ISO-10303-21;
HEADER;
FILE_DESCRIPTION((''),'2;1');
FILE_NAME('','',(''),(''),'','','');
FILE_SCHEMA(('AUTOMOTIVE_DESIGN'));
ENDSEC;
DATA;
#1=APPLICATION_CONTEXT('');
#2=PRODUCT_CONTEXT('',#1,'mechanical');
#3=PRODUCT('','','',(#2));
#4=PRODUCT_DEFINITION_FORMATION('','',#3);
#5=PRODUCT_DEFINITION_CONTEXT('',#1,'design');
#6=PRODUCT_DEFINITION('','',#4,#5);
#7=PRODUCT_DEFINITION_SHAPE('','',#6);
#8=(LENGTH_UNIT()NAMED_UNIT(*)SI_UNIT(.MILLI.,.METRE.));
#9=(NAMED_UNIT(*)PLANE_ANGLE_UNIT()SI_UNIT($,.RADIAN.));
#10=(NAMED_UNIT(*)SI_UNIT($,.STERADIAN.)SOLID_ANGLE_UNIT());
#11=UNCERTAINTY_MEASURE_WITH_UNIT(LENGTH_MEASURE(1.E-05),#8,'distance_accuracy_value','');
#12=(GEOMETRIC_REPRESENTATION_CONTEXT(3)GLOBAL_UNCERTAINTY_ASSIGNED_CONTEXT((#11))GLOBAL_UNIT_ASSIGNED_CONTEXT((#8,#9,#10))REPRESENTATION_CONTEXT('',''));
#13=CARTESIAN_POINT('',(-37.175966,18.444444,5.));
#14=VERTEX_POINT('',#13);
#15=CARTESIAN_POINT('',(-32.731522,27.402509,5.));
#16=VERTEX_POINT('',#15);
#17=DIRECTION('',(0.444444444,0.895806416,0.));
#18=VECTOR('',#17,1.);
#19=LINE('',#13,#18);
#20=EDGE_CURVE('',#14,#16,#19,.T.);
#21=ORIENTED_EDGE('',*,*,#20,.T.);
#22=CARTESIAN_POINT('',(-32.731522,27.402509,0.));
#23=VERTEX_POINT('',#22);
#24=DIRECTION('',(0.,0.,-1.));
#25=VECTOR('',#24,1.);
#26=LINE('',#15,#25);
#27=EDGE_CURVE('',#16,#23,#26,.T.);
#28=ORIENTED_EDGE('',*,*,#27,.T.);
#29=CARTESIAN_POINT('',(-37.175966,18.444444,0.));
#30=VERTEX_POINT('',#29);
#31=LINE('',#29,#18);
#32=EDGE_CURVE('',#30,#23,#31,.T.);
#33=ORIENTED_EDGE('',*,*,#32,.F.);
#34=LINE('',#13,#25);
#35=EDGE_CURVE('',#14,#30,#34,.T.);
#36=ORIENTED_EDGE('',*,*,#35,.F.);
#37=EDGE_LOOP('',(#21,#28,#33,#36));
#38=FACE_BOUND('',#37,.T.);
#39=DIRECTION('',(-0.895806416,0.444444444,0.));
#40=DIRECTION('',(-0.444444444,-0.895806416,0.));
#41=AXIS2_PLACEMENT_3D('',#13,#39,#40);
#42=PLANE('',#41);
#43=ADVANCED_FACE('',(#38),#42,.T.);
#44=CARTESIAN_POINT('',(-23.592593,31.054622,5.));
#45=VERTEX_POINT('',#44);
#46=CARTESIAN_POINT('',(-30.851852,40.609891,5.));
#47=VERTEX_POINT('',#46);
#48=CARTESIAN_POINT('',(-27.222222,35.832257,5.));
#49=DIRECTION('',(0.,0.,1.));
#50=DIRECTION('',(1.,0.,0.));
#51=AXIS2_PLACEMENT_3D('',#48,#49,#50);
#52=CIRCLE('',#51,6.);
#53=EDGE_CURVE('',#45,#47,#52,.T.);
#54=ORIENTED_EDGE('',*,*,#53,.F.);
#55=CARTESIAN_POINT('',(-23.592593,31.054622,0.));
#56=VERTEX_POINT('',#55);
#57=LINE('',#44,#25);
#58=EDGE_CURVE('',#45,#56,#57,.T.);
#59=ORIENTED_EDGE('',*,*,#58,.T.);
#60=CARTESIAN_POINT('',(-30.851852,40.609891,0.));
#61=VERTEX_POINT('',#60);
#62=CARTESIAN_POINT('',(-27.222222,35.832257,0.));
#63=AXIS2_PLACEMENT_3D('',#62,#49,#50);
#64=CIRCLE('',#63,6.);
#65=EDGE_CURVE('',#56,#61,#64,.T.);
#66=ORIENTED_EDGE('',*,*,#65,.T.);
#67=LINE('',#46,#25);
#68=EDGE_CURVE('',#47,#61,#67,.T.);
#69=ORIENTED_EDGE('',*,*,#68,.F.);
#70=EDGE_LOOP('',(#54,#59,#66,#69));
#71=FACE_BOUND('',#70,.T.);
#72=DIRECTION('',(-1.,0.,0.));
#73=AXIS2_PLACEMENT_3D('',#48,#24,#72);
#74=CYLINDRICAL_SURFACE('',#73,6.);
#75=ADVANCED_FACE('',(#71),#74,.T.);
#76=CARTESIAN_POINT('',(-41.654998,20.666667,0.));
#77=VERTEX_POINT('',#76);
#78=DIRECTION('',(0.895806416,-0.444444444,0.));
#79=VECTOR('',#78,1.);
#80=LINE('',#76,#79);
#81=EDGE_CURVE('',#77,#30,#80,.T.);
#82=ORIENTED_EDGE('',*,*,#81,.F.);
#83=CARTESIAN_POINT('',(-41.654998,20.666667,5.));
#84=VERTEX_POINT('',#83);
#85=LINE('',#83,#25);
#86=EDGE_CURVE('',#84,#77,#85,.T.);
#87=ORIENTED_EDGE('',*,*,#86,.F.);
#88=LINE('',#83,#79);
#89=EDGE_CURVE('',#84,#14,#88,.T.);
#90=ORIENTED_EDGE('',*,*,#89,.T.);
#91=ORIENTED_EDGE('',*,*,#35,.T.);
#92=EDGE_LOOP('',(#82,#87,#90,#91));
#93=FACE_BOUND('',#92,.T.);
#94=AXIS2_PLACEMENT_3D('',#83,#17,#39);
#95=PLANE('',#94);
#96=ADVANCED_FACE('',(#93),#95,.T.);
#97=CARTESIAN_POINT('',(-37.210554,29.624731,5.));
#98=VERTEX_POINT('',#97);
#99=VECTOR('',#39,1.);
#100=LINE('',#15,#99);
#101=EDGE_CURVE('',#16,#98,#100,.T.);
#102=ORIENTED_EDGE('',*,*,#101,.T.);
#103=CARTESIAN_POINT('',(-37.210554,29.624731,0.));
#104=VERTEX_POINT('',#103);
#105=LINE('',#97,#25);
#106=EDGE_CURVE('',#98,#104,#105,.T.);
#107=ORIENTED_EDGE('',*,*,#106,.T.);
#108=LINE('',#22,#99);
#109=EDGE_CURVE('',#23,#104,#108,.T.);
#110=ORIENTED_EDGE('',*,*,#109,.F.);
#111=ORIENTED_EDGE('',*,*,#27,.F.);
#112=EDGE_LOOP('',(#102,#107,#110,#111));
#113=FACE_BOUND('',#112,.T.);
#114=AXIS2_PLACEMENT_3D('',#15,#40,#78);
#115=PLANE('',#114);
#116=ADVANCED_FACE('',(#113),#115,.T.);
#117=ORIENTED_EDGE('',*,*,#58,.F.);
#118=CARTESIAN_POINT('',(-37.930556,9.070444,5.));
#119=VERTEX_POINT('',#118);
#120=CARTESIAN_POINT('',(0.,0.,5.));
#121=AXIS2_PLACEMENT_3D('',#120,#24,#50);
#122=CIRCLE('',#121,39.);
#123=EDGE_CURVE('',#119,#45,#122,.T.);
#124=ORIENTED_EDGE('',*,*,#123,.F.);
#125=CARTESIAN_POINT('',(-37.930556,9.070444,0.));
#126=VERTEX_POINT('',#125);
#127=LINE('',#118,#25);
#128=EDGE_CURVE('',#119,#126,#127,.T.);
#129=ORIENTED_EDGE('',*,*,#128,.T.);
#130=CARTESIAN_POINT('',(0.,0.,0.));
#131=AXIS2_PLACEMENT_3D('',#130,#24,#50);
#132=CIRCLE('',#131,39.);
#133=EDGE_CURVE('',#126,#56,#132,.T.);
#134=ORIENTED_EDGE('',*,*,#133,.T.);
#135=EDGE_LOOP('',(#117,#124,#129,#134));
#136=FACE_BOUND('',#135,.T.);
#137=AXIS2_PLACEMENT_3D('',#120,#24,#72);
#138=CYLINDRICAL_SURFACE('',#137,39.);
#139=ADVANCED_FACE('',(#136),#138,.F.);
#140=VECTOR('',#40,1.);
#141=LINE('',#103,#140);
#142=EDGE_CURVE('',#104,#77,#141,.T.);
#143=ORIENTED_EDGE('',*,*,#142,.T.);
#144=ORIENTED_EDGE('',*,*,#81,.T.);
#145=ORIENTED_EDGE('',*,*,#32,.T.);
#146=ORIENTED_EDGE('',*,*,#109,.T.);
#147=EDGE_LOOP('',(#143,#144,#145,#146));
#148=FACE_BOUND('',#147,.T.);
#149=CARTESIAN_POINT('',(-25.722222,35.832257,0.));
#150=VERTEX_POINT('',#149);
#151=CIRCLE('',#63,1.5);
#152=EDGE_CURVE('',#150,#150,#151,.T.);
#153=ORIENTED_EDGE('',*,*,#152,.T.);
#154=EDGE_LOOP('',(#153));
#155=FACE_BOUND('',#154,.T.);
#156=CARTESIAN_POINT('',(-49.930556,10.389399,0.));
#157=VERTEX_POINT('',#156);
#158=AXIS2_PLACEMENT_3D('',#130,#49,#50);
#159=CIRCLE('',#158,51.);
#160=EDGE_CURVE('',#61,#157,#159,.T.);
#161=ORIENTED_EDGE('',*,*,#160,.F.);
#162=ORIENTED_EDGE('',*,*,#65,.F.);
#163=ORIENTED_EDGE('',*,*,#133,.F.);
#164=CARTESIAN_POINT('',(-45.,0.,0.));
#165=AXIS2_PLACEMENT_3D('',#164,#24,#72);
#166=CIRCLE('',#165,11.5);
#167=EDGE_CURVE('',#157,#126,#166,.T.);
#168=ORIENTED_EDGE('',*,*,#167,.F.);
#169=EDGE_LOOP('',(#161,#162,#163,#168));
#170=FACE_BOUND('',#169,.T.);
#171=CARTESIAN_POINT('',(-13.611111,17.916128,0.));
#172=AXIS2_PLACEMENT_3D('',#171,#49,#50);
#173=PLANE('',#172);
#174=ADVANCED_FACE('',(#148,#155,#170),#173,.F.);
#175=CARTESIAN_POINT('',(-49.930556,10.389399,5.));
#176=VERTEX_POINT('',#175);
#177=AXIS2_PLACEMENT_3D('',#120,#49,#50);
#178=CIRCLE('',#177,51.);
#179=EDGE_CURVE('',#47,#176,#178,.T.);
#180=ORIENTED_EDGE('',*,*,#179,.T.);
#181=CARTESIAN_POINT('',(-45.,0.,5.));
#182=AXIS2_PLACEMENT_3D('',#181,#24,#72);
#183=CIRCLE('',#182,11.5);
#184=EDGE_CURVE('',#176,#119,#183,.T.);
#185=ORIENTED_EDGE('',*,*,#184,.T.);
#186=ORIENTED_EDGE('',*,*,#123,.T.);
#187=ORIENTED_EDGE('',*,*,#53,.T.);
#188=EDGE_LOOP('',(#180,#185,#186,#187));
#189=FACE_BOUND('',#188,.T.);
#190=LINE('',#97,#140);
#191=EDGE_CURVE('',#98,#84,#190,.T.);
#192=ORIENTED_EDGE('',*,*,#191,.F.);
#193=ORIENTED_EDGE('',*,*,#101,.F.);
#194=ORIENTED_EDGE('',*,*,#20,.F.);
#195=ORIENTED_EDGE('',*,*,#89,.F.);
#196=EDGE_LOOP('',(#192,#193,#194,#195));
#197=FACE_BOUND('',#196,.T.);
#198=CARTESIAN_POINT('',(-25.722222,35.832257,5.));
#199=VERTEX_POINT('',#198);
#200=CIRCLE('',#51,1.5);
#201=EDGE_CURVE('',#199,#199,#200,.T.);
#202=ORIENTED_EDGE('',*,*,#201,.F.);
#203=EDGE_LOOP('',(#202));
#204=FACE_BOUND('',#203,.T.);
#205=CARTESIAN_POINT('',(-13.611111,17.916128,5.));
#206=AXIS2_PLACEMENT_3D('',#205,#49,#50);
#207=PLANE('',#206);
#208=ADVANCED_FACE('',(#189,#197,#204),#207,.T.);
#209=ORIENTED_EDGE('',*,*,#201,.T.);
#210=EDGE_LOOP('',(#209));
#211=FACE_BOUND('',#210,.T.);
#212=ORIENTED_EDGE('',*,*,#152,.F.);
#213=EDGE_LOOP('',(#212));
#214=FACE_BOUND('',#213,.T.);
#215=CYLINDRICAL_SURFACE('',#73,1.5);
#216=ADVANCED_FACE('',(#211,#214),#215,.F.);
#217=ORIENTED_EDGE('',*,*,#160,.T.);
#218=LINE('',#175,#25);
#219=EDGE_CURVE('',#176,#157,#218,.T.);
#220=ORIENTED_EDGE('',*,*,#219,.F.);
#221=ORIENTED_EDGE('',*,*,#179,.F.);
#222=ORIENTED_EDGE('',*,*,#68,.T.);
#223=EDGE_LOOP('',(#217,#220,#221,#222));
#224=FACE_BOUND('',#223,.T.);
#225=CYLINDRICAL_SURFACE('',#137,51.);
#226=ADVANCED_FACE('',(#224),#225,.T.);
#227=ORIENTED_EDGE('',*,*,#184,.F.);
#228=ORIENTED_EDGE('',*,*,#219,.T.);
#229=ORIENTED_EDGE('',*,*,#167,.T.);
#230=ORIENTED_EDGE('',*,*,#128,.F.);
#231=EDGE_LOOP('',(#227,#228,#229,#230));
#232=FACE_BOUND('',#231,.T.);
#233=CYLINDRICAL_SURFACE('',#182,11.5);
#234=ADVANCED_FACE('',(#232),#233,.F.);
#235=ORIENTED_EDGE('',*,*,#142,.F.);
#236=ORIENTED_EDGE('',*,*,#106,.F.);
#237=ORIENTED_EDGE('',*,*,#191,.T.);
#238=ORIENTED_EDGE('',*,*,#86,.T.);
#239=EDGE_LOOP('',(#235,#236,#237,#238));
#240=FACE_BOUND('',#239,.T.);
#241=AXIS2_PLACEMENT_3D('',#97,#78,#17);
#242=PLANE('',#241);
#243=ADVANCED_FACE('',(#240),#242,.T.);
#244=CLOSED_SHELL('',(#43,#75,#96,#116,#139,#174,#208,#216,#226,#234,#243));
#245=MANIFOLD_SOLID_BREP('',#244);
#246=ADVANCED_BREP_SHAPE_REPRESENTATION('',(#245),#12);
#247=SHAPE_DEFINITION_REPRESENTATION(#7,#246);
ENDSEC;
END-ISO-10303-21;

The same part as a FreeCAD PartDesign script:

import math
import FreeCAD as App
import Part
import Sketcher
from FreeCAD import Vector

doc = App.newDocument("Part")
params = doc.addObject("Spreadsheet::Sheet", "Params")
for row, (alias, value) in enumerate([
    ("sketch1_diameter", "3 mm"),
    ("sketch1_radius", "51 mm"),
    ("sketch1_radius2", "39 mm"),
    ("sketch1_radius3", "11.5 mm"),
    ("sketch1_length", "5 mm"),
    ("pad1_length", "5 mm"),
], start=1):
    params.set(f"A{row}", alias)
    params.set(f"B{row}", "=" + value)
    params.setAlias(f"B{row}", alias)

body = doc.addObject("PartDesign::Body", "Body")

# Sketch on XY plane
sketch1 = body.newObject("Sketcher::SketchObject", "Sketch")
sketch1.AttachmentSupport = (doc.getObject("XY_Plane"), [""])
sketch1.MapMode = "FlatFace"
sketch1.addGeometry([
    Part.ArcOfCircle(Part.Circle(Vector(0, 0, 0), Vector(0, 0, 1), 51), math.radians(127), math.radians(168)),  # 0
    Part.ArcOfCircle(Part.Circle(Vector(-45, 0, 0), Vector(0, 0, 1), 11.5), math.radians(52), math.radians(115)),  # 1
    Part.ArcOfCircle(Part.Circle(Vector(0, 0, 0), Vector(0, 0, 1), 39), math.radians(127), math.radians(167)),  # 2
    Part.ArcOfCircle(Part.Circle(Vector(-27.2, 35.8, 0), Vector(0, 0, 1), 6), math.radians(-53), math.radians(127)),  # 3
    Part.LineSegment(Vector(-37.2, 18.4, 0), Vector(-41.7, 20.7, 0)),  # 4
    Part.LineSegment(Vector(-41.7, 20.7, 0), Vector(-37.2, 29.6, 0)),  # 5
    Part.LineSegment(Vector(-37.2, 29.6, 0), Vector(-32.7, 27.4, 0)),  # 6
    Part.LineSegment(Vector(-32.7, 27.4, 0), Vector(-37.2, 18.4, 0)),  # 7
    Part.Circle(Vector(-27.2, 35.8, 0), Vector(0, 0, 1), 1.5),  # 8
], False)
sketch1.addConstraint([
    Sketcher.Constraint("Coincident", 0, 2, 1, 2),
    Sketcher.Constraint("Coincident", 1, 1, 2, 2),
    Sketcher.Constraint("Tangent", 2, 1, 3, 1),
    Sketcher.Constraint("Tangent", 3, 2, 0, 1),
    Sketcher.Constraint("Coincident", 4, 2, 5, 1),
    Sketcher.Constraint("Coincident", 5, 2, 6, 1),
    Sketcher.Constraint("Coincident", 6, 2, 7, 1),
    Sketcher.Constraint("Coincident", 7, 2, 4, 1),
    Sketcher.Constraint("Coincident", 0, 3, -1, 1),
    Sketcher.Constraint("Coincident", 2, 3, -1, 1),
    Sketcher.Constraint("Coincident", 8, 3, 3, 3),
    Sketcher.Constraint("PointOnObject", 1, 3, -1),
    Sketcher.Constraint("Perpendicular", 4, 5),
    Sketcher.Constraint("Perpendicular", 5, 6),
    Sketcher.Constraint("Perpendicular", 6, 7),
    Sketcher.Constraint("Diameter", 8, 3.0),
    Sketcher.Constraint("Radius", 0, 51.0),
    Sketcher.Constraint("Radius", 2, 39.0),
    Sketcher.Constraint("Radius", 1, 11.5),
    Sketcher.Constraint("Distance", 4, 5.0),
    Sketcher.Constraint("Distance", 5, 10.0),
    Sketcher.Constraint("DistanceX", 1, 3, -1, 1, 45.0),
    Sketcher.Constraint("DistanceX", 4, 2, -1, 1, 41.654998),
    Sketcher.Constraint("DistanceY", 1, 1, 7, 2, 9.374),
    Sketcher.Constraint("DistanceX", 6, 2, 3, 3, 5.5093),
    Sketcher.Constraint("DistanceX", 3, 2, -1, 1, 30.851852),
])
sketch1.setExpression("Constraints[15]", "Params.sketch1_diameter")
sketch1.setExpression("Constraints[16]", "Params.sketch1_radius")
sketch1.setExpression("Constraints[17]", "Params.sketch1_radius2")
sketch1.setExpression("Constraints[18]", "Params.sketch1_radius3")
sketch1.setExpression("Constraints[19]", "Params.sketch1_length")
pad1 = body.newObject("PartDesign::Pad", "Pad")
pad1.Profile = sketch1
pad1.setExpression("Length", "Params.pad1_length")

doc.recompute()
